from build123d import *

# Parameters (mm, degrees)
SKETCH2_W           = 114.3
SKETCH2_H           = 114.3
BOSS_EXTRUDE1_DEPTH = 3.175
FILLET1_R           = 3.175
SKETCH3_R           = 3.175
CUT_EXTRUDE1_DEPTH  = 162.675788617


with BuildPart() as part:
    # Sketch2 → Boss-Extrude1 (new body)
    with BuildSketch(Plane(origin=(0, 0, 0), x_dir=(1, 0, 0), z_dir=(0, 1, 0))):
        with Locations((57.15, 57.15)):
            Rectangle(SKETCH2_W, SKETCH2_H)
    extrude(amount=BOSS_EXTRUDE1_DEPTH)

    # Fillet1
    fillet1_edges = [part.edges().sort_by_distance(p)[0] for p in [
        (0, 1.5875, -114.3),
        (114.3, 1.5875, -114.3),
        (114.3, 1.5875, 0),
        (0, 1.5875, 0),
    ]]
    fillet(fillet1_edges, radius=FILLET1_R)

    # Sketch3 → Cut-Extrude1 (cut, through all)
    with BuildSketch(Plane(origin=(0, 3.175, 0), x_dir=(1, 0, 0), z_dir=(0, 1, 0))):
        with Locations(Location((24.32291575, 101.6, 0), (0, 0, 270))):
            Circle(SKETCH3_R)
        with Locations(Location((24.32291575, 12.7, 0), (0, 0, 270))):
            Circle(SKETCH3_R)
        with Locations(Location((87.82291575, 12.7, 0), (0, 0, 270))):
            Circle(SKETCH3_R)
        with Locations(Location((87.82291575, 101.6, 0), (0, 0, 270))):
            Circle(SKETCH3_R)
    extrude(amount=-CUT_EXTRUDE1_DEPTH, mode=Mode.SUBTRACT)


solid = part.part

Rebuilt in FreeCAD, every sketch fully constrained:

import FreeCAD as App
import Part
import Sketcher

V = App.Vector
Q = App.Units.Quantity


def edges_at(feature, points):
    """Names of the edges that pass closest to the given points."""
    edges = feature.Shape.Edges
    near = lambda p: min(range(len(edges)), key=lambda i: edges[i].distToShape(Part.Vertex(*p))[0])
    return sorted({f"Edge{near(p) + 1}" for p in points})

doc = App.newDocument("Part")
body = doc.addObject("PartDesign::Body", "Body")

sketch1 = doc.addObject("Sketcher::SketchObject", "Sketch")
body.addObject(sketch1)
sketch1.AttachmentSupport = (doc.XZ_Plane, [""])
sketch1.MapMode = "FlatFace"
sketch1.addGeometry([
    Part.LineSegment(V(0, -114.3, 0), V(0, 0, 0)),
    Part.LineSegment(V(0, 0, 0), V(114.3, 0, 0)),
    Part.LineSegment(V(114.3, 0, 0), V(114.3, -114.3, 0)),
    Part.LineSegment(V(114.3, -114.3, 0), V(0, -114.3, 0)),
], False)
sketch1.addConstraint([
    Sketcher.Constraint("Coincident", 0, 2, 1, 1),
    Sketcher.Constraint("Coincident", 1, 2, 2, 1),
    Sketcher.Constraint("Coincident", 2, 2, 3, 1),
    Sketcher.Constraint("Coincident", 3, 2, 0, 1),
    Sketcher.Constraint("Vertical", 0),
    Sketcher.Constraint("Horizontal", 1),
    Sketcher.Constraint("Vertical", 2),
    Sketcher.Constraint("Horizontal", 3),
    Sketcher.Constraint("Coincident", 0, 2, -1, 1),
    Sketcher.Constraint("Equal", 3, 0),
    Sketcher.Constraint("DistanceX", 1, 1, 1, 2, Q("4.5 in")),
])
pad1 = doc.addObject("PartDesign::Pad", "Pad")
body.addObject(pad1)
pad1.Profile = sketch1
pad1.Length = Q("0.125 in")
pad1.Reversed = True
doc.recompute()

fillet = doc.addObject("PartDesign::Fillet", "Fillet")
body.addObject(fillet)
fillet.Base = (pad1, edges_at(pad1, [
    (0, 1.587, -114.3),
    (114.3, 1.587, -114.3),
    (114.3, 1.587, 0),
    (0, 1.587, 0),
]))
fillet.Radius = Q("0.125 in")

sketch2 = doc.addObject("Sketcher::SketchObject", "Sketch001")
body.addObject(sketch2)
sketch2.AttachmentSupport = (doc.XZ_Plane, [""])
sketch2.MapMode = "FlatFace"
sketch2.AttachmentOffset = App.Placement(V(0, 0, -0.125 * 25.4), App.Rotation())
sketch2.addGeometry([
    Part.Circle(V(24.322916, -101.6, 0), V(0, 0, 1), 3.175),
    Part.Circle(V(24.322916, -12.7, 0), V(0, 0, 1), 3.175),
    Part.Circle(V(87.822916, -12.7, 0), V(0, 0, 1), 3.175),
    Part.Circle(V(87.822916, -101.6, 0), V(0, 0, 1), 3.175),
], False)
sketch2.addConstraint([
    Sketcher.Constraint("Equal", 0, 1),
    Sketcher.Constraint("Equal", 1, 2),
    Sketcher.Constraint("Equal", 2, 3),
    Sketcher.Constraint("Horizontal", 1, 3, 2, 3),
    Sketcher.Constraint("Horizontal", 0, 3, 3, 3),
    Sketcher.Constraint("Vertical", 0, 3, 1, 3),
    Sketcher.Constraint("Vertical", 2, 3, 3, 3),
    Sketcher.Constraint("Diameter", 0, Q("0.25 in")),
    Sketcher.Constraint("DistanceY", 0, 3, -1, 1, Q("4 in")),
    Sketcher.Constraint("DistanceY", 1, 3, -1, 1, Q("0.5 in")),
    Sketcher.Constraint("DistanceX", 1, 3, 2, 3, Q("2.5 in")),
    Sketcher.Constraint("DistanceX", -1, 1, 0, 3, Q("24.322916 mm")),
])
pocket1 = doc.addObject("PartDesign::Pocket", "Pocket")
body.addObject(pocket1)
pocket1.Profile = sketch2
pocket1.Type = "ThroughAll"
pocket1.Reversed = True

doc.recompute()
